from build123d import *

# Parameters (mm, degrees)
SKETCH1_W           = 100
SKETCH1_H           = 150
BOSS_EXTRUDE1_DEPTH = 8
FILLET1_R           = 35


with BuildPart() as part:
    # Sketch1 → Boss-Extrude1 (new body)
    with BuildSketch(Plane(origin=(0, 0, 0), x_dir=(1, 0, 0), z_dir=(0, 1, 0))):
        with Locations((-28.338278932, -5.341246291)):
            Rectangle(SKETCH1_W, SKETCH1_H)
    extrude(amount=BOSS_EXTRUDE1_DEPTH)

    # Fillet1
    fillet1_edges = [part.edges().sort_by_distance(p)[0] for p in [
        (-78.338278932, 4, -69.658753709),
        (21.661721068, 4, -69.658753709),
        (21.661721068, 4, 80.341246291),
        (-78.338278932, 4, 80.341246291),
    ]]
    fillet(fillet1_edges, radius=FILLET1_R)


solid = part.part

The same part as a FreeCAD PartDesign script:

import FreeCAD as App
import Part
import Sketcher
from FreeCAD import Vector
Q = App.Units.Quantity


def edges_at(feature, points):
    """Names of the edges that pass closest to the given points."""
    edges = feature.Shape.Edges
    near = lambda p: min(range(len(edges)), key=lambda i: edges[i].distToShape(Part.Vertex(*p))[0])
    return sorted({f"Edge{near(p) + 1}" for p in points})

doc = App.newDocument("Part")
body = doc.addObject("PartDesign::Body", "Body")

# Sketch on XZ plane
sketch1 = body.newObject("Sketcher::SketchObject", "Sketch")
sketch1.AttachmentSupport = (doc.getObject("XZ_Plane"), [""])
sketch1.MapMode = "FlatFace"
sketch1.addGeometry([
    Part.LineSegment(Vector(-78, -70, 0), Vector(-78, 80, 0)),
    Part.LineSegment(Vector(-78, 80, 0), Vector(22, 80, 0)),
    Part.LineSegment(Vector(22, 80, 0), Vector(22, -70, 0)),
    Part.LineSegment(Vector(22, -70, 0), Vector(-78, -70, 0)),
], False)
sketch1.addConstraint([
    Sketcher.Constraint("Coincident", 0, 2, 1, 1),
    Sketcher.Constraint("Coincident", 1, 2, 2, 1),
    Sketcher.Constraint("Coincident", 2, 2, 3, 1),
    Sketcher.Constraint("Coincident", 3, 2, 0, 1),
    Sketcher.Constraint("Vertical", 0),
    Sketcher.Constraint("Horizontal", 1),
    Sketcher.Constraint("Vertical", 2),
    Sketcher.Constraint("Horizontal", 3),
    Sketcher.Constraint("DistanceX", 1, 1, 1, 2, Q("100 mm")),
    Sketcher.Constraint("DistanceY", 0, 1, 0, 2, Q("150 mm")),
    Sketcher.Constraint("DistanceX", 0, 2, -1, 1, Q("78.338279 mm")),
    Sketcher.Constraint("DistanceY", -1, 1, 0, 2, Q("80.341246 mm")),
])
pad1 = body.newObject("PartDesign::Pad", "Pad")
pad1.Profile = sketch1
pad1.Length = 8
pad1.Reversed = True
doc.recompute()

fillet = body.newObject("PartDesign::Fillet", "Fillet")
fillet.Base = (pad1, edges_at(pad1, [
    (-78.338, 4, -69.659),
    (21.662, 4, -69.659),
    (21.662, 4, 80.341),
    (-78.338, 4, 80.341),
]))
fillet.Radius = 35

doc.recompute()
